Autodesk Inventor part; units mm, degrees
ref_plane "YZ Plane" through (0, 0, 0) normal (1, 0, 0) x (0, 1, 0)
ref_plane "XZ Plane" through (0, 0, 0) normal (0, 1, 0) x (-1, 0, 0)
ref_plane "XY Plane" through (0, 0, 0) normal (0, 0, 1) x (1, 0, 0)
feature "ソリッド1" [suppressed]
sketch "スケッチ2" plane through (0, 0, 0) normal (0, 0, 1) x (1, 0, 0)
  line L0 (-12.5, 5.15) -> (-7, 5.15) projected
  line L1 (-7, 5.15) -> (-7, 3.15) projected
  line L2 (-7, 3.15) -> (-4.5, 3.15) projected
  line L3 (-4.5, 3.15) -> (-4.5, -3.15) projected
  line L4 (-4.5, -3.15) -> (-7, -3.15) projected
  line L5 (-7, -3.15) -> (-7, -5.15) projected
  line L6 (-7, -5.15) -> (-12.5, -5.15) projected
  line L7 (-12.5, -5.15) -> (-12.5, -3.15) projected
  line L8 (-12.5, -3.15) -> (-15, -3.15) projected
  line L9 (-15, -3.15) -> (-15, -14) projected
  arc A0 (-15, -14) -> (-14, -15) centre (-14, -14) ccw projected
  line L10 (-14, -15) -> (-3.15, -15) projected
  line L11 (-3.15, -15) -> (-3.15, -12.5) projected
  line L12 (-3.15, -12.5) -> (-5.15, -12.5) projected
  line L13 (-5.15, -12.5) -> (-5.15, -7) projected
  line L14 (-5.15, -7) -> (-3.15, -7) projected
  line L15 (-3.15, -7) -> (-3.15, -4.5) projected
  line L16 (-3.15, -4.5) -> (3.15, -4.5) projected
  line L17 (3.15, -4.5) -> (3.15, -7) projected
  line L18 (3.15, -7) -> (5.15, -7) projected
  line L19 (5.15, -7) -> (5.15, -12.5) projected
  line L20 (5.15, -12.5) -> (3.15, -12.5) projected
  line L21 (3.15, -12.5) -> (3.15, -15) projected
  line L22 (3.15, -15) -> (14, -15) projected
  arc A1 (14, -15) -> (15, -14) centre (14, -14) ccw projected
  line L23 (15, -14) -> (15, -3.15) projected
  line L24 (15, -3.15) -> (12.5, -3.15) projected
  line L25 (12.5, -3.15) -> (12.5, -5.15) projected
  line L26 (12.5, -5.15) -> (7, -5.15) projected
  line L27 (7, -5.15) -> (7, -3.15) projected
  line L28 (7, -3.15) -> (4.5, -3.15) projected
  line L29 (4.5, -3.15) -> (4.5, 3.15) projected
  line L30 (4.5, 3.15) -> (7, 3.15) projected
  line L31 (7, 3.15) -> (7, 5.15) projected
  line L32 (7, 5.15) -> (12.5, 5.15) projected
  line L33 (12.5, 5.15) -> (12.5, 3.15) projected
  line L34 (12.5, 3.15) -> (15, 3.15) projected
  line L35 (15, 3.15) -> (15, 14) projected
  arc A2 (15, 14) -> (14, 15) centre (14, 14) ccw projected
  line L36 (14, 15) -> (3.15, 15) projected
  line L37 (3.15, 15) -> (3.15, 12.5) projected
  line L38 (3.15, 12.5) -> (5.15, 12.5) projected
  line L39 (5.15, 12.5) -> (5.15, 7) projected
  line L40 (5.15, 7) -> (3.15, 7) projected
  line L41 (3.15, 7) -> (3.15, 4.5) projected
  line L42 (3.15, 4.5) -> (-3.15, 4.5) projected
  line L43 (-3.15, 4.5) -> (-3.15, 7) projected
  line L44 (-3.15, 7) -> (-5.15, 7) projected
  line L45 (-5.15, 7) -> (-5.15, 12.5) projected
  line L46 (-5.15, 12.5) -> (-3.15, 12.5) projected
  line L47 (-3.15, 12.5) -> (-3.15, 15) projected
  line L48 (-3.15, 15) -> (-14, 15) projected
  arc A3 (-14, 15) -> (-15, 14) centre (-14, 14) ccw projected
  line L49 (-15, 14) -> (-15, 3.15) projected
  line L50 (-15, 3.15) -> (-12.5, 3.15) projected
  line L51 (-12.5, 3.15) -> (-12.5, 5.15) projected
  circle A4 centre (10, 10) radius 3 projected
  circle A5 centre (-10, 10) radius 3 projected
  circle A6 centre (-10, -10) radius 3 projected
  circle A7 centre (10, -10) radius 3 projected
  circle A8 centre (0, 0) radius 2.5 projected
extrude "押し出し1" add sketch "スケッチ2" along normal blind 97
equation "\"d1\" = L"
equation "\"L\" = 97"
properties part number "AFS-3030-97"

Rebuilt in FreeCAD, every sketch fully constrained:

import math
import FreeCAD as App
import Part
import Sketcher
Q = App.Units.Quantity

doc = App.newDocument("Part")
params = doc.addObject("Spreadsheet::Sheet", "Params")
for row, (alias, value) in enumerate([
    ("sketch1_diameter", "6 mm"),
    ("sketch1_diameter2", "5 mm"),
    ("sketch1_radius", "1 mm"),
    ("sketch1_width", "2 mm"),
    ("sketch1_width2", "5.5 mm"),
    ("pad1_length", "97 mm"),
], start=1):
    params.set(f"A{row}", alias)
    params.set(f"B{row}", "=" + value)
    params.setAlias(f"B{row}", alias)

body = doc.addObject("PartDesign::Body", "Body")

sketch1 = body.newObject("Sketcher::SketchObject", "Sketch")
sketch1.AttachmentSupport = (doc.getObject("XY_Plane"), [""])
sketch1.MapMode = "FlatFace"
sketch1.addGeometry(Part.LineSegment(App.Vector(-12.5, 3.1, 0), App.Vector(-12.5, 5.2, 0)), False)
sketch1.addGeometry(Part.LineSegment(App.Vector(-12.5, 5.2, 0), App.Vector(-7, 5.2, 0)), False)
sketch1.addGeometry(Part.LineSegment(App.Vector(-7, 5.2, 0), App.Vector(-7, 3.1, 0)), False)
sketch1.addGeometry(Part.LineSegment(App.Vector(-7, 3.1, 0), App.Vector(-4.5, 3.1, 0)), False)
sketch1.addGeometry(Part.LineSegment(App.Vector(-4.5, 3.1, 0), App.Vector(-4.5, -3.1, 0)), False)
sketch1.addGeometry(Part.LineSegment(App.Vector(-4.5, -3.1, 0), App.Vector(-7, -3.1, 0)), False)
sketch1.addGeometry(Part.LineSegment(App.Vector(-7, -3.1, 0), App.Vector(-7, -5.2, 0)), False)
sketch1.addGeometry(Part.LineSegment(App.Vector(-7, -5.2, 0), App.Vector(-12.5, -5.2, 0)), False)
sketch1.addGeometry(Part.LineSegment(App.Vector(-12.5, -5.2, 0), App.Vector(-12.5, -3.1, 0)), False)
sketch1.addGeometry(Part.LineSegment(App.Vector(-12.5, -3.1, 0), App.Vector(-15, -3.1, 0)), False)
sketch1.addGeometry(Part.LineSegment(App.Vector(-15, -3.1, 0), App.Vector(-15, -14, 0)), False)
sketch1.addGeometry(Part.ArcOfCircle(Part.Circle(App.Vector(-14, -14, 0), App.Vector(0, 0, 1), 1), math.radians(180), math.radians(270)), False)
sketch1.addGeometry(Part.LineSegment(App.Vector(-14, -15, 0), App.Vector(-3.1, -15, 0)), False)
sketch1.addGeometry(Part.LineSegment(App.Vector(-3.1, -15, 0), App.Vector(-3.1, -12.5, 0)), False)
sketch1.addGeometry(Part.LineSegment(App.Vector(-3.1, -12.5, 0), App.Vector(-5.2, -12.5, 0)), False)
sketch1.addGeometry(Part.LineSegment(App.Vector(-5.2, -12.5, 0), App.Vector(-5.2, -7, 0)), False)
sketch1.addGeometry(Part.LineSegment(App.Vector(-5.2, -7, 0), App.Vector(-3.1, -7, 0)), False)
sketch1.addGeometry(Part.LineSegment(App.Vector(-3.1, -7, 0), App.Vector(-3.1, -4.5, 0)), False)
sketch1.addGeometry(Part.LineSegment(App.Vector(-3.1, -4.5, 0), App.Vector(3.1, -4.5, 0)), False)
sketch1.addGeometry(Part.LineSegment(App.Vector(3.1, -4.5, 0), App.Vector(3.1, -7, 0)), False)
sketch1.addGeometry(Part.LineSegment(App.Vector(3.1, -7, 0), App.Vector(5.2, -7, 0)), False)
sketch1.addGeometry(Part.LineSegment(App.Vector(5.2, -7, 0), App.Vector(5.2, -12.5, 0)), False)
sketch1.addGeometry(Part.LineSegment(App.Vector(5.2, -12.5, 0), App.Vector(3.1, -12.5, 0)), False)
sketch1.addGeometry(Part.LineSegment(App.Vector(3.1, -12.5, 0), App.Vector(3.1, -15, 0)), False)
sketch1.addGeometry(Part.LineSegment(App.Vector(3.1, -15, 0), App.Vector(14, -15, 0)), False)
sketch1.addGeometry(Part.ArcOfCircle(Part.Circle(App.Vector(14, -14, 0), App.Vector(0, 0, 1), 1), math.radians(-90), math.radians(0)), False)
sketch1.addGeometry(Part.LineSegment(App.Vector(15, -14, 0), App.Vector(15, -3.1, 0)), False)
sketch1.addGeometry(Part.LineSegment(App.Vector(15, -3.1, 0), App.Vector(12.5, -3.1, 0)), False)
sketch1.addGeometry(Part.LineSegment(App.Vector(12.5, -3.1, 0), App.Vector(12.5, -5.2, 0)), False)
sketch1.addGeometry(Part.LineSegment(App.Vector(12.5, -5.2, 0), App.Vector(7, -5.2, 0)), False)
sketch1.addGeometry(Part.LineSegment(App.Vector(7, -5.2, 0), App.Vector(7, -3.1, 0)), False)
sketch1.addGeometry(Part.LineSegment(App.Vector(7, -3.1, 0), App.Vector(4.5, -3.1, 0)), False)
sketch1.addGeometry(Part.LineSegment(App.Vector(4.5, -3.1, 0), App.Vector(4.5, 3.1, 0)), False)
sketch1.addGeometry(Part.LineSegment(App.Vector(4.5, 3.1, 0), App.Vector(7, 3.1, 0)), False)
sketch1.addGeometry(Part.LineSegment(App.Vector(7, 3.1, 0), App.Vector(7, 5.2, 0)), False)
sketch1.addGeometry(Part.LineSegment(App.Vector(7, 5.2, 0), App.Vector(12.5, 5.2, 0)), False)
sketch1.addGeometry(Part.LineSegment(App.Vector(12.5, 5.2, 0), App.Vector(12.5, 3.1, 0)), False)
sketch1.addGeometry(Part.LineSegment(App.Vector(12.5, 3.1, 0), App.Vector(15, 3.1, 0)), False)
sketch1.addGeometry(Part.LineSegment(App.Vector(15, 3.1, 0), App.Vector(15, 14, 0)), False)
sketch1.addGeometry(Part.ArcOfCircle(Part.Circle(App.Vector(14, 14, 0), App.Vector(0, 0, 1), 1), math.radians(0), math.radians(90)), False)
sketch1.addGeometry(Part.LineSegment(App.Vector(14, 15, 0), App.Vector(3.1, 15, 0)), False)
sketch1.addGeometry(Part.LineSegment(App.Vector(3.1, 15, 0), App.Vector(3.1, 12.5, 0)), False)
sketch1.addGeometry(Part.LineSegment(App.Vector(3.1, 12.5, 0), App.Vector(5.2, 12.5, 0)), False)
sketch1.addGeometry(Part.LineSegment(App.Vector(5.2, 12.5, 0), App.Vector(5.2, 7, 0)), False)
sketch1.addGeometry(Part.LineSegment(App.Vector(5.2, 7, 0), App.Vector(3.1, 7, 0)), False)
sketch1.addGeometry(Part.LineSegment(App.Vector(3.1, 7, 0), App.Vector(3.1, 4.5, 0)), False)
sketch1.addGeometry(Part.LineSegment(App.Vector(3.1, 4.5, 0), App.Vector(-3.1, 4.5, 0)), False)
sketch1.addGeometry(Part.LineSegment(App.Vector(-3.1, 4.5, 0), App.Vector(-3.1, 7, 0)), False)
sketch1.addGeometry(Part.LineSegment(App.Vector(-3.1, 7, 0), App.Vector(-5.2, 7, 0)), False)
sketch1.addGeometry(Part.LineSegment(App.Vector(-5.2, 7, 0), App.Vector(-5.2, 12.5, 0)), False)
sketch1.addGeometry(Part.LineSegment(App.Vector(-5.2, 12.5, 0), App.Vector(-3.1, 12.5, 0)), False)
sketch1.addGeometry(Part.LineSegment(App.Vector(-3.1, 12.5, 0), App.Vector(-3.1, 15, 0)), False)
sketch1.addGeometry(Part.LineSegment(App.Vector(-3.1, 15, 0), App.Vector(-14, 15, 0)), False)
sketch1.addGeometry(Part.ArcOfCircle(Part.Circle(App.Vector(-14, 14, 0), App.Vector(0, 0, 1), 1), math.radians(90), math.radians(180)), False)
sketch1.addGeometry(Part.LineSegment(App.Vector(-15, 14, 0), App.Vector(-15, 3.1, 0)), False)
sketch1.addGeometry(Part.LineSegment(App.Vector(-15, 3.1, 0), App.Vector(-12.5, 3.1, 0)), False)
sketch1.addGeometry(Part.Circle(App.Vector(-10, -10, 0), App.Vector(0, 0, 1), 3), False)
sketch1.addGeometry(Part.Circle(App.Vector(10, -10, 0), App.Vector(0, 0, 1), 3), False)
sketch1.addGeometry(Part.Circle(App.Vector(-10, 10, 0), App.Vector(0, 0, 1), 3), False)
sketch1.addGeometry(Part.Circle(App.Vector(0, 0, 0), App.Vector(0, 0, 1), 2.5), False)
sketch1.addGeometry(Part.Circle(App.Vector(10, 10, 0), App.Vector(0, 0, 1), 3), False)
sketch1.addConstraint(Sketcher.Constraint("Coincident", 0, 2, 1, 1))
sketch1.addConstraint(Sketcher.Constraint("Coincident", 1, 2, 2, 1))
sketch1.addConstraint(Sketcher.Constraint("Coincident", 2, 2, 3, 1))
sketch1.addConstraint(Sketcher.Constraint("Coincident", 3, 2, 4, 1))
sketch1.addConstraint(Sketcher.Constraint("Coincident", 4, 2, 5, 1))
sketch1.addConstraint(Sketcher.Constraint("Coincident", 5, 2, 6, 1))
sketch1.addConstraint(Sketcher.Constraint("Coincident", 6, 2, 7, 1))
sketch1.addConstraint(Sketcher.Constraint("Coincident", 7, 2, 8, 1))
sketch1.addConstraint(Sketcher.Constraint("Coincident", 8, 2, 9, 1))
sketch1.addConstraint(Sketcher.Constraint("Coincident", 9, 2, 10, 1))
sketch1.addConstraint(Sketcher.Constraint("Tangent", 10, 2, 11, 1))
sketch1.addConstraint(Sketcher.Constraint("Tangent", 11, 2, 12, 1))
sketch1.addConstraint(Sketcher.Constraint("Coincident", 12, 2, 13, 1))
sketch1.addConstraint(Sketcher.Constraint("Coincident", 13, 2, 14, 1))
sketch1.addConstraint(Sketcher.Constraint("Coincident", 14, 2, 15, 1))
sketch1.addConstraint(Sketcher.Constraint("Coincident", 15, 2, 16, 1))
sketch1.addConstraint(Sketcher.Constraint("Coincident", 16, 2, 17, 1))
sketch1.addConstraint(Sketcher.Constraint("Coincident", 17, 2, 18, 1))
sketch1.addConstraint(Sketcher.Constraint("Coincident", 18, 2, 19, 1))
sketch1.addConstraint(Sketcher.Constraint("Coincident", 19, 2, 20, 1))
sketch1.addConstraint(Sketcher.Constraint("Coincident", 20, 2, 21, 1))
sketch1.addConstraint(Sketcher.Constraint("Coincident", 21, 2, 22, 1))
sketch1.addConstraint(Sketcher.Constraint("Coincident", 22, 2, 23, 1))
sketch1.addConstraint(Sketcher.Constraint("Coincident", 23, 2, 24, 1))
sketch1.addConstraint(Sketcher.Constraint("Tangent", 24, 2, 25, 1))
sketch1.addConstraint(Sketcher.Constraint("Tangent", 25, 2, 26, 1))
sketch1.addConstraint(Sketcher.Constraint("Coincident", 26, 2, 27, 1))
sketch1.addConstraint(Sketcher.Constraint("Coincident", 27, 2, 28, 1))
sketch1.addConstraint(Sketcher.Constraint("Coincident", 28, 2, 29, 1))
sketch1.addConstraint(Sketcher.Constraint("Coincident", 29, 2, 30, 1))
sketch1.addConstraint(Sketcher.Constraint("Coincident", 30, 2, 31, 1))
sketch1.addConstraint(Sketcher.Constraint("Coincident", 31, 2, 32, 1))
sketch1.addConstraint(Sketcher.Constraint("Coincident", 32, 2, 33, 1))
sketch1.addConstraint(Sketcher.Constraint("Coincident", 33, 2, 34, 1))
sketch1.addConstraint(Sketcher.Constraint("Coincident", 34, 2, 35, 1))
sketch1.addConstraint(Sketcher.Constraint("Coincident", 35, 2, 36, 1))
sketch1.addConstraint(Sketcher.Constraint("Coincident", 36, 2, 37, 1))
sketch1.addConstraint(Sketcher.Constraint("Coincident", 37, 2, 38, 1))
sketch1.addConstraint(Sketcher.Constraint("Tangent", 38, 2, 39, 1))
sketch1.addConstraint(Sketcher.Constraint("Tangent", 39, 2, 40, 1))
sketch1.addConstraint(Sketcher.Constraint("Coincident", 40, 2, 41, 1))
sketch1.addConstraint(Sketcher.Constraint("Coincident", 41, 2, 42, 1))
sketch1.addConstraint(Sketcher.Constraint("Coincident", 42, 2, 43, 1))
sketch1.addConstraint(Sketcher.Constraint("Coincident", 43, 2, 44, 1))
sketch1.addConstraint(Sketcher.Constraint("Coincident", 44, 2, 45, 1))
sketch1.addConstraint(Sketcher.Constraint("Coincident", 45, 2, 46, 1))
sketch1.addConstraint(Sketcher.Constraint("Coincident", 46, 2, 47, 1))
sketch1.addConstraint(Sketcher.Constraint("Coincident", 47, 2, 48, 1))
sketch1.addConstraint(Sketcher.Constraint("Coincident", 48, 2, 49, 1))
sketch1.addConstraint(Sketcher.Constraint("Coincident", 49, 2, 50, 1))
sketch1.addConstraint(Sketcher.Constraint("Coincident", 50, 2, 51, 1))
sketch1.addConstraint(Sketcher.Constraint("Coincident", 51, 2, 52, 1))
sketch1.addConstraint(Sketcher.Constraint("Tangent", 52, 2, 53, 1))
sketch1.addConstraint(Sketcher.Constraint("Tangent", 53, 2, 54, 1))
sketch1.addConstraint(Sketcher.Constraint("Coincident", 54, 2, 55, 1))
sketch1.addConstraint(Sketcher.Constraint("Coincident", 55, 2, 0, 1))
sketch1.addConstraint(Sketcher.Constraint("Vertical", 0))
sketch1.addConstraint(Sketcher.Constraint("Horizontal", 1))
sketch1.addConstraint(Sketcher.Constraint("Vertical", 2))
sketch1.addConstraint(Sketcher.Constraint("Horizontal", 3))
sketch1.addConstraint(Sketcher.Constraint("Vertical", 4))
sketch1.addConstraint(Sketcher.Constraint("Horizontal", 5))
sketch1.addConstraint(Sketcher.Constraint("Vertical", 6))
sketch1.addConstraint(Sketcher.Constraint("Horizontal", 7))
sketch1.addConstraint(Sketcher.Constraint("Vertical", 8))
sketch1.addConstraint(Sketcher.Constraint("Horizontal", 9))
sketch1.addConstraint(Sketcher.Constraint("Vertical", 10))
sketch1.addConstraint(Sketcher.Constraint("Horizontal", 12))
sketch1.addConstraint(Sketcher.Constraint("Vertical", 13))
sketch1.addConstraint(Sketcher.Constraint("Horizontal", 14))
sketch1.addConstraint(Sketcher.Constraint("Vertical", 15))
sketch1.addConstraint(Sketcher.Constraint("Horizontal", 16))
sketch1.addConstraint(Sketcher.Constraint("Vertical", 17))
sketch1.addConstraint(Sketcher.Constraint("Horizontal", 18))
sketch1.addConstraint(Sketcher.Constraint("Vertical", 19))
sketch1.addConstraint(Sketcher.Constraint("Horizontal", 20))
sketch1.addConstraint(Sketcher.Constraint("Vertical", 21))
sketch1.addConstraint(Sketcher.Constraint("Horizontal", 22))
sketch1.addConstraint(Sketcher.Constraint("Vertical", 23))
sketch1.addConstraint(Sketcher.Constraint("Horizontal", 24))
sketch1.addConstraint(Sketcher.Constraint("Vertical", 26))
sketch1.addConstraint(Sketcher.Constraint("Horizontal", 27))
sketch1.addConstraint(Sketcher.Constraint("Vertical", 28))
sketch1.addConstraint(Sketcher.Constraint("Horizontal", 29))
sketch1.addConstraint(Sketcher.Constraint("Vertical", 30))
sketch1.addConstraint(Sketcher.Constraint("Horizontal", 31))
sketch1.addConstraint(Sketcher.Constraint("Vertical", 32))
sketch1.addConstraint(Sketcher.Constraint("Horizontal", 33))
sketch1.addConstraint(Sketcher.Constraint("Vertical", 34))
sketch1.addConstraint(Sketcher.Constraint("Horizontal", 35))
sketch1.addConstraint(Sketcher.Constraint("Vertical", 36))
sketch1.addConstraint(Sketcher.Constraint("Horizontal", 37))
sketch1.addConstraint(Sketcher.Constraint("Vertical", 38))
sketch1.addConstraint(Sketcher.Constraint("Horizontal", 40))
sketch1.addConstraint(Sketcher.Constraint("Vertical", 41))
sketch1.addConstraint(Sketcher.Constraint("Horizontal", 42))
sketch1.addConstraint(Sketcher.Constraint("Vertical", 43))
sketch1.addConstraint(Sketcher.Constraint("Horizontal", 44))
sketch1.addConstraint(Sketcher.Constraint("Vertical", 45))
sketch1.addConstraint(Sketcher.Constraint("Horizontal", 46))
sketch1.addConstraint(Sketcher.Constraint("Vertical", 47))
sketch1.addConstraint(Sketcher.Constraint("Horizontal", 48))
sketch1.addConstraint(Sketcher.Constraint("Vertical", 49))
sketch1.addConstraint(Sketcher.Constraint("Horizontal", 50))
sketch1.addConstraint(Sketcher.Constraint("Vertical", 51))
sketch1.addConstraint(Sketcher.Constraint("Horizontal", 52))
sketch1.addConstraint(Sketcher.Constraint("Vertical", 54))
sketch1.addConstraint(Sketcher.Constraint("Horizontal", 55))
sketch1.addConstraint(Sketcher.Constraint("Coincident", 59, 3, -1, 1))
sketch1.addConstraint(Sketcher.Constraint("Equal", 11, 25))
sketch1.addConstraint(Sketcher.Constraint("Equal", 25, 39))
sketch1.addConstraint(Sketcher.Constraint("Equal", 39, 53))
sketch1.addConstraint(Sketcher.Constraint("Equal", 56, 57))
sketch1.addConstraint(Sketcher.Constraint("Equal", 57, 58))
sketch1.addConstraint(Sketcher.Constraint("Equal", 58, 60))
sketch1.addConstraint(Sketcher.Constraint("Symmetric", 11, 3, 39, 3, -1, 1))
sketch1.addConstraint(Sketcher.Constraint("Symmetric", 25, 3, 53, 3, -1, 1))
sketch1.addConstraint(Sketcher.Constraint("Symmetric", 57, 3, 58, 3, -1, 1))
sketch1.addConstraint(Sketcher.Constraint("Symmetric", 56, 3, 60, 3, -1, 1))
sketch1.addConstraint(Sketcher.Constraint("Symmetric", 0, 2, 28, 2, -1, 1))
sketch1.addConstraint(Sketcher.Constraint("Symmetric", 2, 2, 30, 2, -1, 1))
sketch1.addConstraint(Sketcher.Constraint("Symmetric", 4, 2, 32, 2, -1, 1))
sketch1.addConstraint(Sketcher.Constraint("Symmetric", 6, 2, 34, 2, -1, 1))
sketch1.addConstraint(Sketcher.Constraint("Symmetric", 8, 2, 36, 2, -1, 1))
sketch1.addConstraint(Sketcher.Constraint("Symmetric", 13, 2, 41, 2, -1, 1))
sketch1.addConstraint(Sketcher.Constraint("Symmetric", 15, 2, 43, 2, -1, 1))
sketch1.addConstraint(Sketcher.Constraint("Symmetric", 17, 2, 45, 2, -1, 1))
sketch1.addConstraint(Sketcher.Constraint("Symmetric", 19, 2, 47, 2, -1, 1))
sketch1.addConstraint(Sketcher.Constraint("Symmetric", 21, 2, 49, 2, -1, 1))
sketch1.addConstraint(Sketcher.Constraint("Symmetric", 11, 3, 25, 3, -2))
sketch1.addConstraint(Sketcher.Constraint("Symmetric", 56, 3, 57, 3, -2))
sketch1.addConstraint(Sketcher.Constraint("Symmetric", 16, 2, 19, 2, -2))
sketch1.addConstraint(Sketcher.Constraint("Symmetric", 14, 2, 21, 2, -2))
sketch1.addConstraint(Sketcher.Constraint("Symmetric", 8, 2, 27, 2, -2))
sketch1.addConstraint(Sketcher.Constraint("Symmetric", 6, 2, 29, 2, -2))
sketch1.addConstraint(Sketcher.Constraint("Horizontal", 5, 2, 8, 2))
sketch1.addConstraint(Sketcher.Constraint("Horizontal", 27, 2, 30, 2))
sketch1.addConstraint(Sketcher.Constraint("Horizontal", 37, 2, 54, 2))
sketch1.addConstraint(Sketcher.Constraint("Vertical", 13, 2, 16, 2))
sketch1.addConstraint(Sketcher.Constraint("Vertical", 19, 2, 22, 2))
sketch1.addConstraint(Sketcher.Constraint("Vertical", 47, 2, 50, 2))
sketch1.addConstraint(Sketcher.Constraint("Equal", 5, 9))
sketch1.addConstraint(Sketcher.Constraint("Equal", 50, 0))
sketch1.addConstraint(Sketcher.Constraint("Equal", 46, 4))
sketch1.addConstraint(Sketcher.Constraint("Equal", 52, 10))
sketch1.addConstraint(Sketcher.Constraint("Equal", 55, 13))
sketch1.addConstraint(Sketcher.Constraint("Equal", 35, 15))
sketch1.addConstraint(Sketcher.Constraint("Equal", 13, 17))
sketch1.addConstraint(Sketcher.Constraint("Diameter", 56, Q("6 mm")))
sketch1.addConstraint(Sketcher.Constraint("Diameter", 59, Q("5 mm")))
sketch1.addConstraint(Sketcher.Constraint("Radius", 11, Q("1 mm")))
sketch1.addConstraint(Sketcher.Constraint("DistanceX", 14, 2, 14, 1, Q("2 mm")))
sketch1.addConstraint(Sketcher.Constraint("DistanceX", 1, 1, 1, 2, Q("5.5 mm")))
sketch1.addConstraint(Sketcher.Constraint("DistanceX", 3, 1, 3, 2, Q("2.5 mm")))
sketch1.addConstraint(Sketcher.Constraint("DistanceX", 18, 1, 18, 2, Q("6.3 mm")))
sketch1.addConstraint(Sketcher.Constraint("DistanceX", 11, 3, -1, 1, Q("14 mm")))
sketch1.addConstraint(Sketcher.Constraint("DistanceX", 56, 3, -1, 1, Q("10 mm")))
sketch1.addConstraint(Sketcher.Constraint("DistanceY", 56, 3, -1, 1, Q("10 mm")))
sketch1.setExpression("Constraints[148]", "Params.sketch1_diameter")
sketch1.setExpression("Constraints[149]", "Params.sketch1_diameter2")
sketch1.setExpression("Constraints[150]", "Params.sketch1_radius")
sketch1.setExpression("Constraints[151]", "Params.sketch1_width")
sketch1.setExpression("Constraints[152]", "Params.sketch1_width2")
pad1 = body.newObject("PartDesign::Pad", "Pad")
pad1.Profile = sketch1
pad1.setExpression("Length", "Params.pad1_length")

doc.recompute()
